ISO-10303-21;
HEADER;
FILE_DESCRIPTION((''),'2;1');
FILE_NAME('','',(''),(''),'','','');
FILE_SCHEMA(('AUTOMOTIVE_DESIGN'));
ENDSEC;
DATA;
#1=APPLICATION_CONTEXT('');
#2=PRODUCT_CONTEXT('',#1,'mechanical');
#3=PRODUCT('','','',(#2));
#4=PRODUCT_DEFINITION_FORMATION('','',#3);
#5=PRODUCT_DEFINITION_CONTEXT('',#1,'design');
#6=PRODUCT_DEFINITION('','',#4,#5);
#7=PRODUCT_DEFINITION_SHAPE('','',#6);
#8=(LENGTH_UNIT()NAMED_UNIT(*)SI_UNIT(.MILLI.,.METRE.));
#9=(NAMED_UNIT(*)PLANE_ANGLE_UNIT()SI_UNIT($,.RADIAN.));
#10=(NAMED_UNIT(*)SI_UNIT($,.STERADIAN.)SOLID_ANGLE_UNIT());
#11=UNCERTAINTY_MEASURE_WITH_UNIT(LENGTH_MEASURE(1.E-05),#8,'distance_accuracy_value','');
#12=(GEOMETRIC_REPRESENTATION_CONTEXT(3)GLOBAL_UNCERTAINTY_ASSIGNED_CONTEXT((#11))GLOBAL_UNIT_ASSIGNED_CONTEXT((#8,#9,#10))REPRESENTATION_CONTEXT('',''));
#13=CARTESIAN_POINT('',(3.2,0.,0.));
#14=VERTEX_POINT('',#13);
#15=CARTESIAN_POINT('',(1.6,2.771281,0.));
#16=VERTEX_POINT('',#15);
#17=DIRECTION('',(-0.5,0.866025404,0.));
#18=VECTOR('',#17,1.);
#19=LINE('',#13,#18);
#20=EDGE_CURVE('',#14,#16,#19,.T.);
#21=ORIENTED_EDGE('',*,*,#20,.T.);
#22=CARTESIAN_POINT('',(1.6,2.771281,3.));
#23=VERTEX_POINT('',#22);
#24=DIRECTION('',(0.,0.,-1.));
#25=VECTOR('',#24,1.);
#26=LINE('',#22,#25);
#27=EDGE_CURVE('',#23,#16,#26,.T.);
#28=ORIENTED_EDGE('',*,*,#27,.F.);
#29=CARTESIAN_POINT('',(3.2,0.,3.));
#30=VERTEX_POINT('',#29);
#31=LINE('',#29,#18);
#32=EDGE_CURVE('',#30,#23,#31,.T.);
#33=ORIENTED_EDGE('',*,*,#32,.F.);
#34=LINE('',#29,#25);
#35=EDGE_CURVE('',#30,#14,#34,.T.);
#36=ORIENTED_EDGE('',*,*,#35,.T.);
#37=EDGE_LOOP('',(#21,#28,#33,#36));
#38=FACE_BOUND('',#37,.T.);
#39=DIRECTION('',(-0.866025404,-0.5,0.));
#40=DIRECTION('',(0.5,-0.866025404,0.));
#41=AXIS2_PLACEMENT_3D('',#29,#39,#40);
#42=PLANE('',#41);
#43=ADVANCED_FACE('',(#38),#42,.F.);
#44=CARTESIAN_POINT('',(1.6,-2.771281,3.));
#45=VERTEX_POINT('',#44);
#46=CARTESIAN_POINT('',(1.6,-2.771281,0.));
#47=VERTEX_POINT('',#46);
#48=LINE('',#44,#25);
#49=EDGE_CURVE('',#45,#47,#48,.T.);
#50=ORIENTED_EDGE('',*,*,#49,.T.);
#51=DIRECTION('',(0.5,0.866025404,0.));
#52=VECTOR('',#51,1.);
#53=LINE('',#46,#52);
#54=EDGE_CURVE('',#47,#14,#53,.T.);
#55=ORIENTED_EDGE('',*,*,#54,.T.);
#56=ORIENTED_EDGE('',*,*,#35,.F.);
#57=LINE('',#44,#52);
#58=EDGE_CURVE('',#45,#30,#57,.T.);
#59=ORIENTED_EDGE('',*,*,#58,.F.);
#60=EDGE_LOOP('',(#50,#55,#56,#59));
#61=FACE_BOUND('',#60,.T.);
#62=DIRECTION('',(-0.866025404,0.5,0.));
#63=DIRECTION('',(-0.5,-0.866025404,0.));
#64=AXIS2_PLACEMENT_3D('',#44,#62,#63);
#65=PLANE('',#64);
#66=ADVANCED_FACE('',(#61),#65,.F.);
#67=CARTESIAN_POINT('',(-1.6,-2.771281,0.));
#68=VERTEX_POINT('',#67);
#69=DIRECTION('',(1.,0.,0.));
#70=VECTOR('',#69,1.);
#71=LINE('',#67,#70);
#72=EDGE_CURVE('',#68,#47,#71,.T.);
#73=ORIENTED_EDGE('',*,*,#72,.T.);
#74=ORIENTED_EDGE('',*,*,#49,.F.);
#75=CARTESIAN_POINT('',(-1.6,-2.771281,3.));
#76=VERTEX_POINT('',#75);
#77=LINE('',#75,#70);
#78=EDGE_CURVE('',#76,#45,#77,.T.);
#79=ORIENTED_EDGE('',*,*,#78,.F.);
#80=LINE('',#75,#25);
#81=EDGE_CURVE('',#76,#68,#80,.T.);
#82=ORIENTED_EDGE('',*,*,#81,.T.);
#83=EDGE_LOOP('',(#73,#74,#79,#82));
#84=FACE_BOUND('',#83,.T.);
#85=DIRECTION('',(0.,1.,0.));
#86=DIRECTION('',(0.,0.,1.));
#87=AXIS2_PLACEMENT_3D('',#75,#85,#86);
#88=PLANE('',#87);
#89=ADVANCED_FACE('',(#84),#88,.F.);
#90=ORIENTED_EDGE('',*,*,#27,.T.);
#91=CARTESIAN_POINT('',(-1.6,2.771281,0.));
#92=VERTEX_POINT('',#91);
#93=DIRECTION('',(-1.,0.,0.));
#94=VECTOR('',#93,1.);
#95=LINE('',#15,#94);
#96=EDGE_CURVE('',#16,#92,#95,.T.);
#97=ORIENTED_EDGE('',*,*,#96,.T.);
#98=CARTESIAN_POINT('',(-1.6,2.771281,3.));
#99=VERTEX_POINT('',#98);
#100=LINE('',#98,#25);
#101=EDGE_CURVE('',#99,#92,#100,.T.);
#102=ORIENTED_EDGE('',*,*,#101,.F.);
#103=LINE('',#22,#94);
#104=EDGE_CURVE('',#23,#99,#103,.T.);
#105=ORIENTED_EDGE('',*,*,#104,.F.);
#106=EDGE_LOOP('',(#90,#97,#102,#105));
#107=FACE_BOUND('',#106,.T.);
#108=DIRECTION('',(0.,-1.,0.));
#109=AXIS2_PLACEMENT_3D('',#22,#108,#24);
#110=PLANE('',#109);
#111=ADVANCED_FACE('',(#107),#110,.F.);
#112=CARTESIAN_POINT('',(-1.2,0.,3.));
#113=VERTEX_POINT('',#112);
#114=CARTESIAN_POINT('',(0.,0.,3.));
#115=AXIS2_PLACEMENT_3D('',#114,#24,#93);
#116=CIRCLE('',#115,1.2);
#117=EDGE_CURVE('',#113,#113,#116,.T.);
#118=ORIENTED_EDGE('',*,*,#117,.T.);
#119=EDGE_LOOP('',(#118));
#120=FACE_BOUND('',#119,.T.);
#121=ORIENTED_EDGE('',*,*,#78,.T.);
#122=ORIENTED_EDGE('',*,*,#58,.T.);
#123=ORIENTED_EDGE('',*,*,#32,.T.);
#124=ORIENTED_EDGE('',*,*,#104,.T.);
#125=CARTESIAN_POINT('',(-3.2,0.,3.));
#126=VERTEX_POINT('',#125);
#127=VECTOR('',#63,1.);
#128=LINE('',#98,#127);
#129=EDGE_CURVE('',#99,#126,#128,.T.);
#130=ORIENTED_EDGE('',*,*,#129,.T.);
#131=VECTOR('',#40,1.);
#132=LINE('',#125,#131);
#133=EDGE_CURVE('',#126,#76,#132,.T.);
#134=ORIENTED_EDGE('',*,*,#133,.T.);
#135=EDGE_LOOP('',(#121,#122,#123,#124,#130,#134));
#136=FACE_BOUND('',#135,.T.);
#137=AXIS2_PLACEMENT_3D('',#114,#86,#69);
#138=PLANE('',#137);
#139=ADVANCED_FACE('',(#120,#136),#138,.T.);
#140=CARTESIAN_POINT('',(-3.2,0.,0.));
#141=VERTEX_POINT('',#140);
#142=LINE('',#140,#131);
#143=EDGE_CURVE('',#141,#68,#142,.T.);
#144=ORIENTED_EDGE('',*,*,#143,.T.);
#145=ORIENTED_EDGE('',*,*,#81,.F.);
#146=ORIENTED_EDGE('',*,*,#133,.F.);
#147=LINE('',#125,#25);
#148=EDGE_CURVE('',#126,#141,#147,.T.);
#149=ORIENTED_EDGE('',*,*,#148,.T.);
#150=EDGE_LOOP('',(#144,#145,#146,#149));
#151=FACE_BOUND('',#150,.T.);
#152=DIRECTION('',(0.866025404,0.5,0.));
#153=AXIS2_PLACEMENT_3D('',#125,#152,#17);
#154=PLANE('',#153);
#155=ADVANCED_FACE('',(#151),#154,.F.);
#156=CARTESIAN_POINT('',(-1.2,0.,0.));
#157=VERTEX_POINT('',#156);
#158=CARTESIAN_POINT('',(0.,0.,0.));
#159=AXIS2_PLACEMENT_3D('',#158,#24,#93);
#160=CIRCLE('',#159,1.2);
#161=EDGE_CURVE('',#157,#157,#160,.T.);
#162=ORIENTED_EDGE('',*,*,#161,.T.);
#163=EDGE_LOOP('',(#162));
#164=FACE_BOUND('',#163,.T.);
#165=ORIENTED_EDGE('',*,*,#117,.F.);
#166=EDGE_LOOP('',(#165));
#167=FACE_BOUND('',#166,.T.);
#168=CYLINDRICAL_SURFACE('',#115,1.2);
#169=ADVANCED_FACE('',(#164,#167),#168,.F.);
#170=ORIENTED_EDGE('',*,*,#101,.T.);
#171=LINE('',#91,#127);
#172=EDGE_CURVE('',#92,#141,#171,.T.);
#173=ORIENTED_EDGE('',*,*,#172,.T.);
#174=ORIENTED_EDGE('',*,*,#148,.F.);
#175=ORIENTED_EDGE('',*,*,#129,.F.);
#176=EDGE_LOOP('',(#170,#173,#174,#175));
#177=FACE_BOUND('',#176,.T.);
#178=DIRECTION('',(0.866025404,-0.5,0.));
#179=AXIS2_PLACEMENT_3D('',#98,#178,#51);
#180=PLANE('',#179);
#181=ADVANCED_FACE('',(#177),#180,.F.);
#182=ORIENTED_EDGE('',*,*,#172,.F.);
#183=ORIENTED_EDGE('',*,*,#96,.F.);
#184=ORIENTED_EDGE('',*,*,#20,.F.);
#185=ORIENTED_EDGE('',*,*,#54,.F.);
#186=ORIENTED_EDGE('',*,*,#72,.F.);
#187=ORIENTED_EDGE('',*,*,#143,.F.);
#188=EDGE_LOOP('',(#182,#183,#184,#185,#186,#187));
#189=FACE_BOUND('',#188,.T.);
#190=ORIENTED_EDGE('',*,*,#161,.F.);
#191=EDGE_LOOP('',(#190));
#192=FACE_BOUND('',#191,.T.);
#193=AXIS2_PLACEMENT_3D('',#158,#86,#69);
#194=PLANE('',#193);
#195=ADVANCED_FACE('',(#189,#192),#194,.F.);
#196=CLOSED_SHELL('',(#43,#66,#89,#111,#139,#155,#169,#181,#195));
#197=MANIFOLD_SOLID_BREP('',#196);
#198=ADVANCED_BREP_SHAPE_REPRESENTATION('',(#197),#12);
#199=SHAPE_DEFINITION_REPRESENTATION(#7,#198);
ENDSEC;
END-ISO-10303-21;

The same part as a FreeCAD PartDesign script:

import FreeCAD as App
import Part
import Sketcher

V = App.Vector
Q = App.Units.Quantity

doc = App.newDocument("Part")
body = doc.addObject("PartDesign::Body", "Body")

# Sketch on XY plane
sketch1 = body.newObject("Sketcher::SketchObject", "Sketch")
sketch1.AttachmentSupport = (doc.getObject("XY_Plane"), [""])
sketch1.MapMode = "FlatFace"
sketch1.addGeometry(Part.LineSegment(V(1.6, 2.8, 0), V(-1.6, 2.8, 0)), False)
sketch1.addGeometry(Part.LineSegment(V(-1.6, 2.8, 0), V(-3.2, 0, 0)), False)
sketch1.addGeometry(Part.LineSegment(V(-3.2, 0, 0), V(-1.6, -2.8, 0)), False)
sketch1.addGeometry(Part.LineSegment(V(-1.6, -2.8, 0), V(1.6, -2.8, 0)), False)
sketch1.addGeometry(Part.LineSegment(V(1.6, -2.8, 0), V(3.2, 0, 0)), False)
sketch1.addGeometry(Part.LineSegment(V(3.2, 0, 0), V(1.6, 2.8, 0)), False)
sketch1.addConstraint(Sketcher.Constraint("Coincident", 0, 2, 1, 1))
sketch1.addConstraint(Sketcher.Constraint("Coincident", 1, 2, 2, 1))
sketch1.addConstraint(Sketcher.Constraint("Coincident", 2, 2, 3, 1))
sketch1.addConstraint(Sketcher.Constraint("Coincident", 3, 2, 4, 1))
sketch1.addConstraint(Sketcher.Constraint("Coincident", 4, 2, 5, 1))
sketch1.addConstraint(Sketcher.Constraint("Coincident", 5, 2, 0, 1))
sketch1.addConstraint(Sketcher.Constraint("Horizontal", 0))
sketch1.addConstraint(Sketcher.Constraint("Horizontal", 3))
sketch1.addConstraint(Sketcher.Constraint("Symmetric", 0, 2, 3, 2, -1, 1))
sketch1.addConstraint(Sketcher.Constraint("Symmetric", 1, 2, 4, 2, -1, 1))
sketch1.addConstraint(Sketcher.Constraint("PointOnObject", 1, 2, -1))
sketch1.addConstraint(Sketcher.Constraint("Parallel", 2, 5))
sketch1.addConstraint(Sketcher.Constraint("Vertical", 0, 2, 2, 2))
sketch1.addConstraint(Sketcher.Constraint("Angle", 1, Q("-120 deg")))
sketch1.addConstraint(Sketcher.Constraint("DistanceX", 0, 2, 0, 1, 3.2))
sketch1.addConstraint(Sketcher.Constraint("Distance", 1, 3.2))
pad1 = body.newObject("PartDesign::Pad", "Pad")
pad1.Profile = sketch1
pad1.Length = 3

# Sketch on XY plane
sketch2 = body.newObject("Sketcher::SketchObject", "Sketch001")
sketch2.AttachmentSupport = (doc.getObject("XY_Plane"), [""])
sketch2.MapMode = "FlatFace"
sketch2.addGeometry(Part.Circle(V(0, 0, 0), V(0, 0, 1), 1.2), False)
sketch2.addConstraint(Sketcher.Constraint("Coincident", 0, 3, -1, 1))
sketch2.addConstraint(Sketcher.Constraint("Diameter", 0, 2.4))
pocket1 = body.newObject("PartDesign::Pocket", "Pocket")
pocket1.Profile = sketch2
pocket1.Length = 3
pocket1.Reversed = True

doc.recompute()
